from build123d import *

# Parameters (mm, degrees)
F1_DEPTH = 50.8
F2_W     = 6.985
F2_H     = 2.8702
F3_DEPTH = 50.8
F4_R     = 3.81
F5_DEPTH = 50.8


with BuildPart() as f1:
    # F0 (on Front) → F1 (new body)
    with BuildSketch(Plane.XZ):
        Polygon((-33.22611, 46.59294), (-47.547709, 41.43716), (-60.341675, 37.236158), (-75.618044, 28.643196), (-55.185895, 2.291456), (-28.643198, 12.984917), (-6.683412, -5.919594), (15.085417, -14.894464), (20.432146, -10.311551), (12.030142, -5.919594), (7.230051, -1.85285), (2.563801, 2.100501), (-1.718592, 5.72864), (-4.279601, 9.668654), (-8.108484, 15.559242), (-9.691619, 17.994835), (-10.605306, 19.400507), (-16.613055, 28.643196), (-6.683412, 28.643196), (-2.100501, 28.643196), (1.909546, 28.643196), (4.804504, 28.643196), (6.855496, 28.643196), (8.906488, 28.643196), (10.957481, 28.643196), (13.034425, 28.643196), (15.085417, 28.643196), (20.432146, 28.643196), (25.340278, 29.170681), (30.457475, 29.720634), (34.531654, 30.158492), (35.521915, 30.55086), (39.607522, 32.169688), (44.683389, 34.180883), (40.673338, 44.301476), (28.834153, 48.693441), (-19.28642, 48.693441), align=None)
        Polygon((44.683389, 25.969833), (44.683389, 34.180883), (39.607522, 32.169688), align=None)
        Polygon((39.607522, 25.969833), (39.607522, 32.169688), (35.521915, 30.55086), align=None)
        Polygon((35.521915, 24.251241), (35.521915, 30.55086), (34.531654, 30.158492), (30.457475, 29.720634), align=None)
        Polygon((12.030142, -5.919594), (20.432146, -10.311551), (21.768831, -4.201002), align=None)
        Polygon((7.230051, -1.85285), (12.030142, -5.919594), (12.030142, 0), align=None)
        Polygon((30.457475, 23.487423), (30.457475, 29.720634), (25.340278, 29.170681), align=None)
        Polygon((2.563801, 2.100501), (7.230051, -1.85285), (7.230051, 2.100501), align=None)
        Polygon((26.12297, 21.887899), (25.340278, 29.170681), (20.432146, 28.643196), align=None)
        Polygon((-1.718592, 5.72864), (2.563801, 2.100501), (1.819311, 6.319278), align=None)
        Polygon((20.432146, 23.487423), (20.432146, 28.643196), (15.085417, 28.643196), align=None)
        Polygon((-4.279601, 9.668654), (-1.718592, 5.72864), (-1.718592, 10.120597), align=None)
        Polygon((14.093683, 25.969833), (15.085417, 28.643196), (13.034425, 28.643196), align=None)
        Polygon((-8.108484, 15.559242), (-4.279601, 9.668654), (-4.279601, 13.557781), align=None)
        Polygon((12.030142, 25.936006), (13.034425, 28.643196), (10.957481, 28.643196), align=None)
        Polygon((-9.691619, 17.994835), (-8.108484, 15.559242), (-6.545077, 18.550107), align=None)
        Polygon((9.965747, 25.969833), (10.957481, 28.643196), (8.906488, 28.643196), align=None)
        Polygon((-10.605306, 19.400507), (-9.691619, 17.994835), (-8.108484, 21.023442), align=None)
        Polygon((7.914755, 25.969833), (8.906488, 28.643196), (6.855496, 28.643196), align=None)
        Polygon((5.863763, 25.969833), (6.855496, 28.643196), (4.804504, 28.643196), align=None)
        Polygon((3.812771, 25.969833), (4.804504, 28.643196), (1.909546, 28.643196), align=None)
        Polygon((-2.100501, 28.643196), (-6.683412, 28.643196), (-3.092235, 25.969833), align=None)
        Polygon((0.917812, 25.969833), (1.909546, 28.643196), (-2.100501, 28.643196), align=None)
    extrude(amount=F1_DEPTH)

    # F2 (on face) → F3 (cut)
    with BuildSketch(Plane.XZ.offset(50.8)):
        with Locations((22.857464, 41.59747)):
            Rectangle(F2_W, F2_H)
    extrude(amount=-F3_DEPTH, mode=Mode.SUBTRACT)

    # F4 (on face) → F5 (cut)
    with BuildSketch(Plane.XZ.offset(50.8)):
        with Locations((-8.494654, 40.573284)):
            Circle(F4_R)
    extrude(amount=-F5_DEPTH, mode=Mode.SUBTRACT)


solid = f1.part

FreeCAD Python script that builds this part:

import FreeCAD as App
import Part
import Sketcher
from FreeCAD import Vector
Q = App.Units.Quantity


def add_polygon(sketch, points):
    """Adds a closed chain of lines whose ends are joined by coincident constraints."""
    first, n = sketch.GeometryCount, len(points)
    for a, b in zip(points, points[1:] + points[:1]):
        sketch.addGeometry(Part.LineSegment(App.Vector(*a, 0), App.Vector(*b, 0)), False)
    for i in range(n):
        sketch.addConstraint(Sketcher.Constraint("Coincident", first + i, 2, first + (i + 1) % n, 1))

doc = App.newDocument("Part")
body = doc.addObject("PartDesign::Body", "Body")

sketch1 = body.newObject("Sketcher::SketchObject", "Sketch")
sketch1.AttachmentSupport = (doc.getObject("XZ_Plane"), [""])
sketch1.MapMode = "FlatFace"
add_polygon(sketch1, [(-33.2, 46.6), (-47.5, 41.4), (-60.3, 37.2), (-75.6, 28.6), (-55.2, 2.3), (-28.6, 13), (-6.7, -5.9), (15.1, -14.9), (20.4, -10.3), (21.8, -4.2), (12, -5.9), (12, 0), (7.2, -1.9), (7.2, 2.1), (2.6, 2.1), (1.8, 6.3), (-1.7, 5.7), (-1.7, 10.1), (-4.3, 9.7), (-4.3, 13.6), (-8.1, 15.6), (-6.5, 18.6), (-9.7, 18), (-8.1, 21), (-10.6, 19.4), (-16.6, 28.6), (-6.7, 28.6), (-3.1, 26), (-2.1, 28.6), (0.9, 26), (1.9, 28.6), (3.8, 26), (4.8, 28.6), (5.9, 26), (6.9, 28.6), (7.9, 26), (8.9, 28.6), (10, 26), (11, 28.6), (12, 25.9), (13, 28.6), (14.1, 26), (15.1, 28.6), (20.4, 23.5), (20.4, 28.6), (26.1, 21.9), (25.3, 29.2), (30.5, 23.5), (30.5, 29.7), (35.5, 24.3), (35.5, 30.6), (39.6, 26), (39.6, 32.2), (44.7, 26), (44.7, 34.2), (40.7, 44.3), (28.8, 48.7), (-19.3, 48.7)])
sketch1.addConstraint([
    Sketcher.Constraint("Vertical", 10),
    Sketcher.Constraint("Vertical", 12),
    Sketcher.Constraint("Horizontal", 13),
    Sketcher.Constraint("Vertical", 16),
    Sketcher.Constraint("Vertical", 18),
    Sketcher.Constraint("Horizontal", 25),
    Sketcher.Constraint("Vertical", 43),
    Sketcher.Constraint("Vertical", 47),
    Sketcher.Constraint("Vertical", 49),
    Sketcher.Constraint("Vertical", 51),
    Sketcher.Constraint("Vertical", 53),
    Sketcher.Constraint("Horizontal", 56),
    Sketcher.Constraint("PointOnObject", 10, 2, -1),
    Sketcher.Constraint("Perpendicular", 9, 14),
    Sketcher.Constraint("Perpendicular", 14, 17),
    Sketcher.Constraint("Perpendicular", 19, 20),
    Sketcher.Constraint("Parallel", 17, 21),
    Sketcher.Constraint("Parallel", 20, 22),
    Sketcher.Constraint("Perpendicular", 23, 24),
    Sketcher.Constraint("Parallel", 27, 29),
    Sketcher.Constraint("Parallel", 29, 31),
    Sketcher.Constraint("Parallel", 31, 33),
    Sketcher.Constraint("Parallel", 32, 34),
    Sketcher.Constraint("Parallel", 33, 35),
    Sketcher.Constraint("Parallel", 34, 36),
    Sketcher.Constraint("Parallel", 35, 37),
    Sketcher.Constraint("Parallel", 36, 38),
    Sketcher.Constraint("Parallel", 37, 39),
    Sketcher.Constraint("Parallel", 38, 40),
    Sketcher.Constraint("Parallel", 39, 41),
    Sketcher.Constraint("Parallel", 40, 54),
    Sketcher.Constraint("Perpendicular", 41, 55),
    Sketcher.Constraint("Horizontal", 5, 2, 9, 2),
    Sketcher.Constraint("Horizontal", 2, 2, 24, 2),
    Sketcher.Constraint("Horizontal", 25, 2, 27, 2),
    Sketcher.Constraint("Horizontal", 26, 2, 28, 2),
    Sketcher.Constraint("Horizontal", 27, 2, 29, 2),
    Sketcher.Constraint("Horizontal", 28, 2, 30, 2),
    Sketcher.Constraint("Horizontal", 29, 2, 31, 2),
    Sketcher.Constraint("Horizontal", 30, 2, 32, 2),
    Sketcher.Constraint("Horizontal", 31, 2, 33, 2),
    Sketcher.Constraint("Horizontal", 32, 2, 34, 2),
    Sketcher.Constraint("Horizontal", 33, 2, 35, 2),
    Sketcher.Constraint("Horizontal", 34, 2, 36, 2),
    Sketcher.Constraint("Horizontal", 35, 2, 37, 2),
    Sketcher.Constraint("Horizontal", 37, 2, 39, 2),
    Sketcher.Constraint("Horizontal", 36, 2, 40, 2),
    Sketcher.Constraint("Horizontal", 39, 2, 41, 2),
    Sketcher.Constraint("Horizontal", 41, 2, 43, 2),
    Sketcher.Constraint("Horizontal", 42, 2, 46, 2),
    Sketcher.Constraint("Horizontal", 40, 2, 50, 2),
    Sketcher.Constraint("Horizontal", 50, 2, 52, 2),
    Sketcher.Constraint("Vertical", 19, 2, 22, 2),
    Sketcher.Constraint("Vertical", 5, 2, 25, 2),
    Sketcher.Constraint("Vertical", 10, 2, 38, 2),
    Sketcher.Constraint("Vertical", 6, 2, 41, 2),
    Sketcher.Constraint("Vertical", 7, 2, 42, 2),
    Sketcher.Constraint("DistanceX", 4, 2, 7, 2, Q("1.9321002 in")),
    Sketcher.Constraint("DistanceX", 23, 2, 22, 2, Q("0.0983001 in")),
    Sketcher.Constraint("DistanceX", 13, 2, 13, 1, 4.66625),
    Sketcher.Constraint("DistanceY", 12, 1, 12, 2, 3.953351),
    Sketcher.Constraint("DistanceY", 47, 1, 47, 2, 6.233211),
    Sketcher.Constraint("DistanceY", 49, 1, 49, 2, 6.299619),
    Sketcher.Constraint("DistanceY", 53, 1, 53, 2, 8.21105),
    Sketcher.Constraint("DistanceX", 4, 2, -1, 1, 28.643198),
    Sketcher.Constraint("DistanceY", -1, 1, 12, 2, 2.100501),
    Sketcher.Constraint("DistanceX", -1, 1, 13, 2, 2.563801),
    Sketcher.Constraint("DistanceX", 17, 2, -1, 1, 4.279601),
    Sketcher.Constraint("DistanceX", 27, 2, -1, 1, 2.100501),
    Sketcher.Constraint("DistanceY", -1, 1, 44, 2, 21.887899),
    Sketcher.Constraint("DistanceY", 1, 2, 0, 2, 4.201002),
    Sketcher.Constraint("DistanceY", 15, 2, 19, 2, 9.830602),
    Sketcher.Constraint("DistanceY", 19, 2, 22, 2, 5.4642),
    Sketcher.Constraint("DistanceY", 20, 2, 23, 2, 0.8504),
    Sketcher.Constraint("DistanceY", 21, 2, 26, 2, 7.974998),
    Sketcher.Constraint("DistanceX", 36, 2, 42, 2, 10.466399),
    Sketcher.Constraint("DistanceY", 50, 2, 47, 2, 3.750801),
    Sketcher.Constraint("DistanceY", 57, 2, 56, 2, 2.100501),
    Sketcher.Constraint("DistanceX", 0, 2, 57, 2, 14.321599),
    Sketcher.Constraint("Distance", 1, 13.466031),
    Sketcher.Constraint("Distance", 3, 33.344968),
    Sketcher.Constraint("Distance", 5, 28.976072),
    Sketcher.Constraint("Distance", 6, 23.546342),
    Sketcher.Constraint("Distance", 7, 7.04206),
    Sketcher.Constraint("Distance", 8, 6.255041),
    Sketcher.Constraint("Distance", 11, 5.145282),
    Sketcher.Constraint("Distance", 17, 2.600581),
    Sketcher.Constraint("Distance", 19, 4.320439),
    Sketcher.Constraint("Distance", 21, 3.195161),
    Sketcher.Constraint("Distance", 26, 4.476988),
    Sketcher.Constraint("Distance", 32, 2.875569),
    Sketcher.Constraint("Distance", 45, 7.32472),
    Sketcher.Constraint("Distance", 50, 6.13824),
    Sketcher.Constraint("Distance", 57, 14.097059),
    Sketcher.Constraint("DistanceX", 25, 1, 25, 2, 9.929643),
    Sketcher.Constraint("DistanceX", 56, 2, 56, 1, 48.120573),
    Sketcher.Constraint("DistanceY", 10, 1, 10, 2, 5.919594),
    Sketcher.Constraint("DistanceY", 16, 1, 16, 2, 4.391957),
    Sketcher.Constraint("DistanceY", 18, 1, 18, 2, 3.889127),
    Sketcher.Constraint("DistanceY", 43, 1, 43, 2, 5.155773),
    Sketcher.Constraint("DistanceY", 51, 1, 51, 2, 6.199855),
    Sketcher.Constraint("DistanceX", 0, 2, -1, 1, 47.547709),
    Sketcher.Constraint("DistanceY", -1, 1, 0, 2, 41.43716),
    Sketcher.Constraint("DistanceX", 5, 2, -1, 1, 6.683412),
    Sketcher.Constraint("DistanceX", -1, 1, 14, 2, 1.819311),
    Sketcher.Constraint("DistanceY", -1, 1, 15, 2, 5.72864),
    Sketcher.Constraint("DistanceX", -1, 1, 28, 2, 0.917812),
    Sketcher.Constraint("DistanceX", -1, 1, 44, 2, 26.12297),
    Sketcher.Constraint("DistanceX", -1, 1, 45, 2, 25.340278),
    Sketcher.Constraint("DistanceY", -1, 1, 48, 2, 24.251241),
    Sketcher.Constraint("DistanceX", -1, 1, 52, 2, 44.683389),
    Sketcher.Constraint("DistanceY", -1, 1, 55, 2, 48.693441),
    Sketcher.Constraint("DistanceX", 2, 2, 1, 2, 15.276369),
    Sketcher.Constraint("DistanceX", 2, 2, 3, 2, 20.432149),
    Sketcher.Constraint("DistanceX", 42, 2, 46, 2, 10.025329),
    Sketcher.Constraint("DistanceX", 46, 2, 48, 2, 5.06444),
])
pad1 = body.newObject("PartDesign::Pad", "Pad")
pad1.Profile = sketch1
pad1.Length = Q("2 in")

sketch2 = body.newObject("Sketcher::SketchObject", "Sketch001")
sketch2.AttachmentSupport = (doc.getObject("XZ_Plane"), [""])
sketch2.MapMode = "FlatFace"
sketch2.AttachmentOffset = App.Placement(Vector(0, 0, 2 * 25.4), App.Rotation())
add_polygon(sketch2, [(19.4, 43), (19.4, 40.2), (26.3, 40.2), (26.3, 43)])
sketch2.addConstraint([
    Sketcher.Constraint("Vertical", 0),
    Sketcher.Constraint("Horizontal", 1),
    Sketcher.Constraint("Vertical", 2),
    Sketcher.Constraint("Horizontal", 3),
    Sketcher.Constraint("DistanceX", 1, 1, 1, 2, Q("0.275 in")),
    Sketcher.Constraint("DistanceY", 0, 2, 0, 1, Q("0.113 in")),
    Sketcher.Constraint("DistanceX", -1, 1, 0, 2, Q("0.7624002 in")),
    Sketcher.Constraint("DistanceY", -1, 1, 0, 2, 40.16237),
])
pocket1 = body.newObject("PartDesign::Pocket", "Pocket")
pocket1.Profile = sketch2
pocket1.Length = Q("2 in")

sketch3 = body.newObject("Sketcher::SketchObject", "Sketch002")
sketch3.AttachmentSupport = (doc.getObject("XZ_Plane"), [""])
sketch3.MapMode = "FlatFace"
sketch3.AttachmentOffset = App.Placement(Vector(0, 0, 2 * 25.4), App.Rotation())
sketch3.addGeometry(Part.Circle(Vector(-8.5, 40.6, 0), Vector(0, 0, 1), 3.8), False)
sketch3.addConstraint([
    Sketcher.Constraint("Diameter", 0, Q("0.3 in")),
    Sketcher.Constraint("DistanceX", 0, 3, -1, 1, 8.494654),
    Sketcher.Constraint("DistanceY", -1, 1, 0, 3, 40.573284),
])
pocket2 = body.newObject("PartDesign::Pocket", "Pocket001")
pocket2.Profile = sketch3
pocket2.Length = Q("2 in")

doc.recompute()
